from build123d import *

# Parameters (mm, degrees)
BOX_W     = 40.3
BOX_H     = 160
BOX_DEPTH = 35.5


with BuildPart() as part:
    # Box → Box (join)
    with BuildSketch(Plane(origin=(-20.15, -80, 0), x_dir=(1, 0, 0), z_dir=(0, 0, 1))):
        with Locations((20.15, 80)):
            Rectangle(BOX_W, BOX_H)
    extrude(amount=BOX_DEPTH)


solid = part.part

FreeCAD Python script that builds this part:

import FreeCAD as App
import Part
import Sketcher
from FreeCAD import Vector


def add_polygon(sketch, points):
    """Adds a closed chain of lines whose ends are joined by coincident constraints."""
    first, n = sketch.GeometryCount, len(points)
    for a, b in zip(points, points[1:] + points[:1]):
        sketch.addGeometry(Part.LineSegment(App.Vector(*a, 0), App.Vector(*b, 0)), False)
    for i in range(n):
        sketch.addConstraint(Sketcher.Constraint("Coincident", first + i, 2, first + (i + 1) % n, 1))

doc = App.newDocument("Part")
body = doc.addObject("PartDesign::Body", "Body")

sketch1 = body.newObject("Sketcher::SketchObject", "Sketch")
sketch1.AttachmentSupport = (doc.getObject("XY_Plane"), [""])
sketch1.MapMode = "FlatFace"
add_polygon(sketch1, [(-20, 80), (-20, -80), (20, -80), (20, 80)])
sketch1.addConstraint(Sketcher.Constraint("Vertical", 0))
sketch1.addConstraint(Sketcher.Constraint("Horizontal", 1))
sketch1.addConstraint(Sketcher.Constraint("Vertical", 2))
sketch1.addConstraint(Sketcher.Constraint("Horizontal", 3))
sketch1.addConstraint(Sketcher.Constraint("Symmetric", 0, 2, 2, 2, -1, 1))
sketch1.addConstraint(Sketcher.Constraint("DistanceY", 0, 2, 0, 1, 160.0))
sketch1.addConstraint(Sketcher.Constraint("DistanceX", 1, 1, 1, 2, 40.3))
pad1 = body.newObject("PartDesign::Pad", "Pad")
pad1.Profile = sketch1
pad1.Length = 35.5

doc.recompute()
